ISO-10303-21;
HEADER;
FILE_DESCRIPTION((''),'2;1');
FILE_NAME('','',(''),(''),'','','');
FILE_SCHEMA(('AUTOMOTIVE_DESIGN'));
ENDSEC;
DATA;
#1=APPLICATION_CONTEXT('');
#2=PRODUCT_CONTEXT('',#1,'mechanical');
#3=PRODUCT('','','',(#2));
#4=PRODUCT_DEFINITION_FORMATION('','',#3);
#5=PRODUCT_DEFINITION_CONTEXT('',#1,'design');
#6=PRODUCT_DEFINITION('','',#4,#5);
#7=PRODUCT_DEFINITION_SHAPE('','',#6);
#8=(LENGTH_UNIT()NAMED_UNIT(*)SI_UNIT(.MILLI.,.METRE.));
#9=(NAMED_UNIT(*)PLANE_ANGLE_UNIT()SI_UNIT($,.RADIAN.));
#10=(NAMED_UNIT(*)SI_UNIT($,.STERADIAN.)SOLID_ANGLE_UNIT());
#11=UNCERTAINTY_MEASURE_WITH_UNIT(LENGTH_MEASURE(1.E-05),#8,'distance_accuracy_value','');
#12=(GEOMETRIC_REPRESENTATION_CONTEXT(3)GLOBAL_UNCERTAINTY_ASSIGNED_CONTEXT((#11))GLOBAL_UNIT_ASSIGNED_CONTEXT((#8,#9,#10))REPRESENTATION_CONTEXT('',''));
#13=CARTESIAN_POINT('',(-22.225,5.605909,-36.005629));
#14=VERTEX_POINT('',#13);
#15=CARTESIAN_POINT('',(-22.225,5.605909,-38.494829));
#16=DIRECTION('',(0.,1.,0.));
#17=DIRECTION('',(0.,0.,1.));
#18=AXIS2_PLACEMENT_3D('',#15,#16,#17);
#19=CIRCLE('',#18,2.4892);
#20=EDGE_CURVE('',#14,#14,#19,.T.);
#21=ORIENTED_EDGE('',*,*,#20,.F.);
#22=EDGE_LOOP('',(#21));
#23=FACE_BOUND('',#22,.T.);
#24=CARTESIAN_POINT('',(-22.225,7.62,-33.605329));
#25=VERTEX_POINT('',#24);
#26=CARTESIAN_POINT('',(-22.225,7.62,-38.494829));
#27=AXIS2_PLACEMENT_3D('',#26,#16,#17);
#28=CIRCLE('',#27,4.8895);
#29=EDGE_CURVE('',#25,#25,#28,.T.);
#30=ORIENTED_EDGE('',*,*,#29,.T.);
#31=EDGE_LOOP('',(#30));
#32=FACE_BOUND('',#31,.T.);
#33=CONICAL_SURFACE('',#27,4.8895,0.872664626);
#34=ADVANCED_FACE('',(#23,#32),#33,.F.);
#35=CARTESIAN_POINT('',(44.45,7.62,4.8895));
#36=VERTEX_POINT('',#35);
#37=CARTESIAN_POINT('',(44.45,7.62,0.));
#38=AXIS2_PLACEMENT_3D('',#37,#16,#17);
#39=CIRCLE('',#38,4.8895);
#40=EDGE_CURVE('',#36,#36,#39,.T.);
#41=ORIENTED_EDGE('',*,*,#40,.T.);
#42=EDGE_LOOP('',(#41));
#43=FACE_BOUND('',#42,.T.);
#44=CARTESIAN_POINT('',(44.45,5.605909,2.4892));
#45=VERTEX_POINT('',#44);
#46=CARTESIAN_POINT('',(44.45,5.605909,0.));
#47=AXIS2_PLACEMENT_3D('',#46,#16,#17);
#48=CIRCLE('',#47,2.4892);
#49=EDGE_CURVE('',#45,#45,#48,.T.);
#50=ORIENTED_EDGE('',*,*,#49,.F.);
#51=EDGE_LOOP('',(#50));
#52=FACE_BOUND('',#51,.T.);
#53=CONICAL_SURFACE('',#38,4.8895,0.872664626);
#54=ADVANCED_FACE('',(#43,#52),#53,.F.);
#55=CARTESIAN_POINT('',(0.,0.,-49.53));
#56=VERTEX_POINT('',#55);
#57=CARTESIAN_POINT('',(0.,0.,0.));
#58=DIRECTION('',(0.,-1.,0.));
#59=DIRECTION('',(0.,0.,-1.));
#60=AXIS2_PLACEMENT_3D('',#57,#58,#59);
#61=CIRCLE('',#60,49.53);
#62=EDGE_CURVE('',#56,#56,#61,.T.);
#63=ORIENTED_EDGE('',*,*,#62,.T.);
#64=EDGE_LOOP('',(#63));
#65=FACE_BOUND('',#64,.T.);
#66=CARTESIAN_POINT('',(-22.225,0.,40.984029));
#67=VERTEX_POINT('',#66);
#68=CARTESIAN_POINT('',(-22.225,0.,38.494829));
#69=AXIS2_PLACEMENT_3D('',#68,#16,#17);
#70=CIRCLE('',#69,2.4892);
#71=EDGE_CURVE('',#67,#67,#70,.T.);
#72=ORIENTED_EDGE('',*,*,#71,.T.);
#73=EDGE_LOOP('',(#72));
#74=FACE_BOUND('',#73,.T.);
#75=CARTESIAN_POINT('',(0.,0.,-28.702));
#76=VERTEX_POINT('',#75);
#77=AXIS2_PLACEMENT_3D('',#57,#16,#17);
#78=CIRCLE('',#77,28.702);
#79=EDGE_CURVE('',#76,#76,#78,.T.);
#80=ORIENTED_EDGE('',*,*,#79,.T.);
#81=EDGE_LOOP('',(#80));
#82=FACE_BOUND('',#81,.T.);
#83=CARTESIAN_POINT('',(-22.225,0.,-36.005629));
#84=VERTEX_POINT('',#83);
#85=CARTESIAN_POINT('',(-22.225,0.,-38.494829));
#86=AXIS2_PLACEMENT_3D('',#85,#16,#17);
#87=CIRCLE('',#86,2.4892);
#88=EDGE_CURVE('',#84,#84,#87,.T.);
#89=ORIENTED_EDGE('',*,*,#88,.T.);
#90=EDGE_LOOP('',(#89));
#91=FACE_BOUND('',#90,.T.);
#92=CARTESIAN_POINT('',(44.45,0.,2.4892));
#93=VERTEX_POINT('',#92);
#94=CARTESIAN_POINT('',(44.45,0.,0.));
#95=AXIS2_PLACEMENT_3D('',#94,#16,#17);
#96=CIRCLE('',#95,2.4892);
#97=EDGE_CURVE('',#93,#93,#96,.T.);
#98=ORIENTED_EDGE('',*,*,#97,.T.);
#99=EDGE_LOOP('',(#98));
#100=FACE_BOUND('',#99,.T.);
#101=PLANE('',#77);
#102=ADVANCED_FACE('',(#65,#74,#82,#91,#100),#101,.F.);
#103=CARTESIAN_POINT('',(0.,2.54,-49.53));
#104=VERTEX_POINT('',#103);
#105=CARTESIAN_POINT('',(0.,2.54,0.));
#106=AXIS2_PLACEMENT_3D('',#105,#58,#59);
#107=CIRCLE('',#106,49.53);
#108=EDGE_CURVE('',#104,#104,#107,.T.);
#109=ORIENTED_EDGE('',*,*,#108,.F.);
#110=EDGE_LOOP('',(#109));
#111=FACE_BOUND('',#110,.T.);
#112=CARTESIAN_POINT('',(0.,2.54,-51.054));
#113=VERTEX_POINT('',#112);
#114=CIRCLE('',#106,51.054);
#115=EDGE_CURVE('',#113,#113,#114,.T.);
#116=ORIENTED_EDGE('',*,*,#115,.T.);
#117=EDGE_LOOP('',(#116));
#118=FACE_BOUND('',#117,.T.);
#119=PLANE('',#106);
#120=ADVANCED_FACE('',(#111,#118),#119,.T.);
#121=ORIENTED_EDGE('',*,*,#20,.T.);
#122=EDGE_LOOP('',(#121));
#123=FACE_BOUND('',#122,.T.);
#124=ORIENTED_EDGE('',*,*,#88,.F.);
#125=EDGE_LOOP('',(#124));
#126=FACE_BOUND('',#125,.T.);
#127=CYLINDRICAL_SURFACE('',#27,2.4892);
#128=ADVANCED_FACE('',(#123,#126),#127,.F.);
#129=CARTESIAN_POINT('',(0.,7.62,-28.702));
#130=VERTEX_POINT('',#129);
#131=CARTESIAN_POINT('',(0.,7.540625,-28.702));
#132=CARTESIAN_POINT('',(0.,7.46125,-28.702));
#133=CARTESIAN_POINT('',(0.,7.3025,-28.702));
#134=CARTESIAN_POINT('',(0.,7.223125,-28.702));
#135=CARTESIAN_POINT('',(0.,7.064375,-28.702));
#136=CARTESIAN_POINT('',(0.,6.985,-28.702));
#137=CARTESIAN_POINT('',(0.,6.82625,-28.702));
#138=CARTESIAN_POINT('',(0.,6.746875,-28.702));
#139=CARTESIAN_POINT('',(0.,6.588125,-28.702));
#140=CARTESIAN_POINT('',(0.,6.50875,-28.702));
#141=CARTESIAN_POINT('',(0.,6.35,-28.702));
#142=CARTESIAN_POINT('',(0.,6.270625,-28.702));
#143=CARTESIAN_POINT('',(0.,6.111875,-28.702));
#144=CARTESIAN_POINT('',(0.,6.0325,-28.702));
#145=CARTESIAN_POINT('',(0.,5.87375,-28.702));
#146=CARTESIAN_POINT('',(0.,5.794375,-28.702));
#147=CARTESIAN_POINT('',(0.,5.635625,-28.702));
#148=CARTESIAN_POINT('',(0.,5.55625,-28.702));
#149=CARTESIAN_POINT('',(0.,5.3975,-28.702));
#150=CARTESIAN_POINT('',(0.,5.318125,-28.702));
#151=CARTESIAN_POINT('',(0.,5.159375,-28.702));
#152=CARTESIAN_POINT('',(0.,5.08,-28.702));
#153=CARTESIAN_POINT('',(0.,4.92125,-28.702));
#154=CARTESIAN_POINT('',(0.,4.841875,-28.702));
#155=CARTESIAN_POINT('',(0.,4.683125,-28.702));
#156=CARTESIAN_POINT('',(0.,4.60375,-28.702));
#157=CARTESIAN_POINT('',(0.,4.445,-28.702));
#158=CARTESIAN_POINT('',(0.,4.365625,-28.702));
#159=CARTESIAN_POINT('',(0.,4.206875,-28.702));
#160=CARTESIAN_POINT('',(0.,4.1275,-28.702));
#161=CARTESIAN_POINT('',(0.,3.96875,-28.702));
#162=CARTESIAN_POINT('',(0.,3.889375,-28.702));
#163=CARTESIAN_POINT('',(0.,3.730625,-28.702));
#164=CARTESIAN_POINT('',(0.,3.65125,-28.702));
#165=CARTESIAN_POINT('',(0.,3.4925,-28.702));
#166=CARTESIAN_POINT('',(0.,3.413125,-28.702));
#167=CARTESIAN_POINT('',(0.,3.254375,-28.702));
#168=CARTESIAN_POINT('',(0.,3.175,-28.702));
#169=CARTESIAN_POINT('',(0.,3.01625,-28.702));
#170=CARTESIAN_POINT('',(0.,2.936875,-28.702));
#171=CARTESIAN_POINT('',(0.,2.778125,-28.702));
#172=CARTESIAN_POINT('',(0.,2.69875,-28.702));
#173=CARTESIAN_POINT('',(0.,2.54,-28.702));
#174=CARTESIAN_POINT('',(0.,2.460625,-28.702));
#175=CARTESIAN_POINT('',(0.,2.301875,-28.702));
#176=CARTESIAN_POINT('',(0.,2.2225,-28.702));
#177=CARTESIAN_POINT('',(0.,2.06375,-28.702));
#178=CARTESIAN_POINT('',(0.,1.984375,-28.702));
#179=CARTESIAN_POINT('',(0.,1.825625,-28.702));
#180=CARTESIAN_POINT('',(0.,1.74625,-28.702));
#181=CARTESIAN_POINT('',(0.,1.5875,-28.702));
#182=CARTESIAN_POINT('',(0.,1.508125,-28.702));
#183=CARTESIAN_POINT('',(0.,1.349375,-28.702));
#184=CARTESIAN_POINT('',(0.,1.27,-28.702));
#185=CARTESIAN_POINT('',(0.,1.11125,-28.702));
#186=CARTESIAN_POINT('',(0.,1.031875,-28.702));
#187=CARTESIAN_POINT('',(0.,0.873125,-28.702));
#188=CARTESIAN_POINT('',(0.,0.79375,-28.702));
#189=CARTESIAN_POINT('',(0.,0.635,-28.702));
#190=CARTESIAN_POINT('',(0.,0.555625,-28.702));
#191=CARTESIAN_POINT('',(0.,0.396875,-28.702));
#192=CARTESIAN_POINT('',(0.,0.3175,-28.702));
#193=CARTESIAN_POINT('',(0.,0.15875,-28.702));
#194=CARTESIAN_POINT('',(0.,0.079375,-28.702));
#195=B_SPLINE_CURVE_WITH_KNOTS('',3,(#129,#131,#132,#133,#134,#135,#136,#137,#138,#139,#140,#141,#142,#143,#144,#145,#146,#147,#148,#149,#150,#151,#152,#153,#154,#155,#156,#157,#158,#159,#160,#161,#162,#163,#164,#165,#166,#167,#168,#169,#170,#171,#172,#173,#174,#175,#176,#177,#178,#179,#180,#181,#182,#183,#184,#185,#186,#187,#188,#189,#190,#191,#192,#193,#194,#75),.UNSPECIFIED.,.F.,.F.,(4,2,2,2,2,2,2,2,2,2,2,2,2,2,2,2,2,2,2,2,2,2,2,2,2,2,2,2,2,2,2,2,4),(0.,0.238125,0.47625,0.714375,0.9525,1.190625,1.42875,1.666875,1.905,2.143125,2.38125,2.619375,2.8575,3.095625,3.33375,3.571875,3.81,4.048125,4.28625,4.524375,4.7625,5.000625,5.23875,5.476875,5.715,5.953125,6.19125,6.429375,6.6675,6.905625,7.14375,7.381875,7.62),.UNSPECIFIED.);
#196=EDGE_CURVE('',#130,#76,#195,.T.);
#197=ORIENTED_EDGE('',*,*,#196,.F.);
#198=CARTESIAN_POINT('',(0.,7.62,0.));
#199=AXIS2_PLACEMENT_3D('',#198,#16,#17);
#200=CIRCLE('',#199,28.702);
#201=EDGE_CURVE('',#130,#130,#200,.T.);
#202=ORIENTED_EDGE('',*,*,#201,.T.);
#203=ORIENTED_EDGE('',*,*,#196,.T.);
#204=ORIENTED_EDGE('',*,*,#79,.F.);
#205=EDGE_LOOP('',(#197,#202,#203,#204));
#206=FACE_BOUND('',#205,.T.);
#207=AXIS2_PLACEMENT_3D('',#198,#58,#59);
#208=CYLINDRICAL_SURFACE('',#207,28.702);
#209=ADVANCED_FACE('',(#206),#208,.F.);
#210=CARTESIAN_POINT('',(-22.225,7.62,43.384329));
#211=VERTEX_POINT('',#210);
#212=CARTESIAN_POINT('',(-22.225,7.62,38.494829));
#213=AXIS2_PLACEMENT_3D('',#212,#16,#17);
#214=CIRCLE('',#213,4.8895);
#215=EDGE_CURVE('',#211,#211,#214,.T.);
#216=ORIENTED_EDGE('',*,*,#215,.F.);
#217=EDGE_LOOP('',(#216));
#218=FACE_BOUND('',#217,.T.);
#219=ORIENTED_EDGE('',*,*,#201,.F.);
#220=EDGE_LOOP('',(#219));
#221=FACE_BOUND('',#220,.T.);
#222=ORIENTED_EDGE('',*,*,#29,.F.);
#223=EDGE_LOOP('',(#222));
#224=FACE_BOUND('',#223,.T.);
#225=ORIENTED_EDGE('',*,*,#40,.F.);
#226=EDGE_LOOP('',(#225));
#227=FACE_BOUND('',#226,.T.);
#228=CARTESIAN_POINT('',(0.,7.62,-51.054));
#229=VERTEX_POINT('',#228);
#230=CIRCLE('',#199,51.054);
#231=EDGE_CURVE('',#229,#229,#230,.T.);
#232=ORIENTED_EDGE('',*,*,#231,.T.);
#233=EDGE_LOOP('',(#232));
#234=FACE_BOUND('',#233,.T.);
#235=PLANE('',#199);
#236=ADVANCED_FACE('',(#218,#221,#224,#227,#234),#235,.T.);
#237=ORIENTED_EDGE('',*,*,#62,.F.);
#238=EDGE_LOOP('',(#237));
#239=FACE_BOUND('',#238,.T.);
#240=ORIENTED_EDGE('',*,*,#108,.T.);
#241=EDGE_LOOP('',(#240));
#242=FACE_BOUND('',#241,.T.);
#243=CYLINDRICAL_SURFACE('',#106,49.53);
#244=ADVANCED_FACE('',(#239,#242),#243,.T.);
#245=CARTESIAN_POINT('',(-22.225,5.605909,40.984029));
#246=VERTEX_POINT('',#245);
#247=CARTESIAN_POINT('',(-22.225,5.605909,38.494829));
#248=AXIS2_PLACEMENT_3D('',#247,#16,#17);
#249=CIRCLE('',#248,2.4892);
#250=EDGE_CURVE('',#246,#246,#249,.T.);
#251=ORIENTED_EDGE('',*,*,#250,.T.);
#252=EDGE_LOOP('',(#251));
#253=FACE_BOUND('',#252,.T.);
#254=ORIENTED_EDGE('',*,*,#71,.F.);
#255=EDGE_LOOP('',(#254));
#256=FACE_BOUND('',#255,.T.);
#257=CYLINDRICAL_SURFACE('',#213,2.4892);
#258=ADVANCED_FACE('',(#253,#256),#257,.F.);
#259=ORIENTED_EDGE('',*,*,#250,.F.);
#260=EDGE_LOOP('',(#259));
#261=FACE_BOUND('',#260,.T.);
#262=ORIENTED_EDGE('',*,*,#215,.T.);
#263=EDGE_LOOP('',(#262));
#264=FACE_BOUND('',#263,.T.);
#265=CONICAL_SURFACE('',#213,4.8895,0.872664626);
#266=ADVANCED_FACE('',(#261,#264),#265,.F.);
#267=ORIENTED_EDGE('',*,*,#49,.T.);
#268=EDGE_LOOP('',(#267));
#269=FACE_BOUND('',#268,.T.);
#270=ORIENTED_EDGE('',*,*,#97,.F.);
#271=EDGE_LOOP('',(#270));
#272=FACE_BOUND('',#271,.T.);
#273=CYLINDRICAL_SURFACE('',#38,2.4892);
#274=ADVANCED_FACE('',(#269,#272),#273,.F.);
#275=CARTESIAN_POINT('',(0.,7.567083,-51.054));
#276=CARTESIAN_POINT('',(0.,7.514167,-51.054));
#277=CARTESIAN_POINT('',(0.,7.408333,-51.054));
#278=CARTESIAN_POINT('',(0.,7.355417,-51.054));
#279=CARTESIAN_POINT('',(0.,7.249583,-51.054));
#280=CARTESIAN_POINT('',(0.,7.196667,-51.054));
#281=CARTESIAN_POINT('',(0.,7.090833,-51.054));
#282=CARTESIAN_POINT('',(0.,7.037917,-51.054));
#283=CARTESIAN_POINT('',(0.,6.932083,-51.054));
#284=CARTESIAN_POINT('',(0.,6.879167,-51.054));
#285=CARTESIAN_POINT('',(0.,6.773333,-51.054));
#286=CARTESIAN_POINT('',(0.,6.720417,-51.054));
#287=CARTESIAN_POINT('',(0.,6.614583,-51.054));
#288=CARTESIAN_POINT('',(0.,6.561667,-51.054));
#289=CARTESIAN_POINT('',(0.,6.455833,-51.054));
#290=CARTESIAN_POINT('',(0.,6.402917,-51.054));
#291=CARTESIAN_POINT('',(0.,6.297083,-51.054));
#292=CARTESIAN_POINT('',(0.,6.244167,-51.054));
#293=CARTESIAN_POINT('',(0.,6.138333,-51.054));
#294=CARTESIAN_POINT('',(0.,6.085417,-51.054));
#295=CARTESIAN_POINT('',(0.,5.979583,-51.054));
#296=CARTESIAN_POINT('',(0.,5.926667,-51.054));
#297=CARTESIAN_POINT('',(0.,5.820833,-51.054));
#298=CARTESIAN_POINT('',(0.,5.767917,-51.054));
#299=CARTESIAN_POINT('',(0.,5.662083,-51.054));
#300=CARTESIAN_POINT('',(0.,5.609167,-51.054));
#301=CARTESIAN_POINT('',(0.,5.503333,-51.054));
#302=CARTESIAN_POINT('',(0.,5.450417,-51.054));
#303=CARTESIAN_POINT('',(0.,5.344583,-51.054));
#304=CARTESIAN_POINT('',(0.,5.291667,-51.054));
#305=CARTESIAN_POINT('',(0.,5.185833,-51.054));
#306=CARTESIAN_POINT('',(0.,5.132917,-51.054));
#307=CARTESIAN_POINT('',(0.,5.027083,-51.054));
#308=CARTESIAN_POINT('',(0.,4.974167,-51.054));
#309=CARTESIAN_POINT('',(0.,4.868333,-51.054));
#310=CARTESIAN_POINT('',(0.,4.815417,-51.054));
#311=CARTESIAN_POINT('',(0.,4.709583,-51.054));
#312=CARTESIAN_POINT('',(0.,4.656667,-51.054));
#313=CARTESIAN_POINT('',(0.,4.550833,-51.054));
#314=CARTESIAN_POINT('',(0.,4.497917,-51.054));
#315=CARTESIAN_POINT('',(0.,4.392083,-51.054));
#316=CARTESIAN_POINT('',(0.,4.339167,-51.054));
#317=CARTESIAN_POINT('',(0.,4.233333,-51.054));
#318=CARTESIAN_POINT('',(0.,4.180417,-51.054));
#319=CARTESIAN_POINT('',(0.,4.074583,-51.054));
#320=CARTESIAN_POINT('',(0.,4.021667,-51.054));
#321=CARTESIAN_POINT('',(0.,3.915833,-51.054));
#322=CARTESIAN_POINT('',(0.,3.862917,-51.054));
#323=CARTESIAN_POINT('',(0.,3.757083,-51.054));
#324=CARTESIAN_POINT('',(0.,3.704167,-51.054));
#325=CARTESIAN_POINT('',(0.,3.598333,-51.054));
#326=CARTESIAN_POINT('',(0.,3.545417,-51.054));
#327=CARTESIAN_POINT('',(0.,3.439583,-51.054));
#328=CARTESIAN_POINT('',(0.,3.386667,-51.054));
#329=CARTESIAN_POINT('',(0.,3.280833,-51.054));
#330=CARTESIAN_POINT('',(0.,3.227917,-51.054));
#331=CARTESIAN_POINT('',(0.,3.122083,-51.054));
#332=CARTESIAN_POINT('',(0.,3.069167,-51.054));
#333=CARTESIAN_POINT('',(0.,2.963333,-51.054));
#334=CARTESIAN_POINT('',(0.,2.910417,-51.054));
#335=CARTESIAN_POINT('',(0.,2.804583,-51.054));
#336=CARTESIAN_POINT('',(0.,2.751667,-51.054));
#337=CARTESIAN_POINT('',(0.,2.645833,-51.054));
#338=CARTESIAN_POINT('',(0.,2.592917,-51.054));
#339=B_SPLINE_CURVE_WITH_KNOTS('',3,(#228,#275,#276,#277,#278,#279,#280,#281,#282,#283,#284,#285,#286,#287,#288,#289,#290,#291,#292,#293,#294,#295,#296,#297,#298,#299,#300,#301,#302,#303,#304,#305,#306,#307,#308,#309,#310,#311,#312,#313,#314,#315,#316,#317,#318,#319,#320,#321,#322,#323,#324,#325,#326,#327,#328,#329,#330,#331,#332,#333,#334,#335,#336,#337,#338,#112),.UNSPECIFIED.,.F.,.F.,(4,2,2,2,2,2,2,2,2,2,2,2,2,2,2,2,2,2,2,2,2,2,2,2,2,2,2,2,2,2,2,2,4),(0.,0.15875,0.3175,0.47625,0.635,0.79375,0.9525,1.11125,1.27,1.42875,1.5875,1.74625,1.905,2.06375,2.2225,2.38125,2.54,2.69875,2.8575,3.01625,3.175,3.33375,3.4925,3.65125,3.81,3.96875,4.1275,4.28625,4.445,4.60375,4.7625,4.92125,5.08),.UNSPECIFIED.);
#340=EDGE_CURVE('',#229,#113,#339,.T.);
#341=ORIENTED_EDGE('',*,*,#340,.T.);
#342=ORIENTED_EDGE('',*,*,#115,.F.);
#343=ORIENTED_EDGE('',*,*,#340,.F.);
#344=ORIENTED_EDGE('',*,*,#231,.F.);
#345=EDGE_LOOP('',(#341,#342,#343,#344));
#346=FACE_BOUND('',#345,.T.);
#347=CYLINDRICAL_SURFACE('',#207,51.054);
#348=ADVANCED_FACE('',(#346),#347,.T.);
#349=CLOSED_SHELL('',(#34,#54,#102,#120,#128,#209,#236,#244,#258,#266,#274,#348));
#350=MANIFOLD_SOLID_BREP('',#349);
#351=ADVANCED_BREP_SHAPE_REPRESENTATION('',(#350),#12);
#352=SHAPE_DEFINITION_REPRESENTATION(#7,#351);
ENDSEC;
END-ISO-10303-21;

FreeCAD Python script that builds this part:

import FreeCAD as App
import Part
import Sketcher
Q = App.Units.Quantity

doc = App.newDocument("Part")
body = doc.addObject("PartDesign::Body", "Body")

# Sketch on XZ plane
sketch1 = doc.addObject("Sketcher::SketchObject", "Sketch")
body.addObject(sketch1)
sketch1.AttachmentSupport = (doc.XZ_Plane, [""])
sketch1.MapMode = "FlatFace"
sketch1.addGeometry([
    Part.Circle(App.Vector(0, 0, 0), App.Vector(0, 0, 1), 51),
    Part.Circle(App.Vector(0, 0, 0), App.Vector(0, 0, 1), 29),
], False)
sketch1.addConstraint([
    Sketcher.Constraint("Coincident", 0, 3, -1, 1),
    Sketcher.Constraint("Coincident", 1, 3, -1, 1),
    Sketcher.Constraint("Diameter", 0, Q("4.02 in")),
    Sketcher.Constraint("Diameter", 1, Q("2.26 in")),
])
pad1 = doc.addObject("PartDesign::Pad", "Pad")
body.addObject(pad1)
pad1.Profile = sketch1
pad1.Length = Q("0.3 in")
pad1.Reversed = True

# Sketch on XZ plane
sketch2 = doc.addObject("Sketcher::SketchObject", "Sketch001")
body.addObject(sketch2)
sketch2.AttachmentSupport = (doc.XZ_Plane, [""])
sketch2.MapMode = "FlatFace"
sketch2.AttachmentOffset = App.Placement(App.Vector(0, 0, -0.3 * 25.4), App.Rotation())
sketch2.addGeometry(Part.Circle(App.Vector(44.5, 0, 0), App.Vector(0, 0, 1), 2.5), False)
sketch2.addConstraint([
    Sketcher.Constraint("PointOnObject", 0, 3, -1),
    Sketcher.Constraint("Diameter", 0, Q("0.196 in")),
    Sketcher.Constraint("DistanceX", -1, 1, 0, 3, Q("1.75 in")),
])
doc.recompute()
hole = doc.addObject("PartDesign::Hole", "Hole")
body.addObject(hole)
hole.Profile = sketch2
hole.ThreadType = "None"
hole.Diameter = Q("0.196 in")
hole.DepthType = "ThroughAll"
hole.HoleCutType = "Countersink"
hole.HoleCutDiameter = Q("0.385 in")
hole.HoleCutCountersinkAngle = 100
hole.Reversed = True
doc.recompute()

polarpattern = doc.addObject("PartDesign::PolarPattern", "PolarPattern")
body.addObject(polarpattern)
polarpattern.Originals = [hole]
polarpattern.Axis = (doc.Y_Axis, [""])
polarpattern.Angle = 360
polarpattern.Occurrences = 3
body.Tip = polarpattern

# Sketch on XZ plane
sketch3 = doc.addObject("Sketcher::SketchObject", "Sketch002")
body.addObject(sketch3)
sketch3.AttachmentSupport = (doc.XZ_Plane, [""])
sketch3.MapMode = "FlatFace"
sketch3.addGeometry([
    Part.Circle(App.Vector(0, 0, 0), App.Vector(0, 0, 1), 51),
    Part.Circle(App.Vector(0, 0, 0), App.Vector(0, 0, 1), 50),
], False)
sketch3.addConstraint([
    Sketcher.Constraint("Coincident", 0, 3, -1, 1),
    Sketcher.Constraint("Coincident", 1, 3, -1, 1),
    Sketcher.Constraint("Diameter", 1, Q("3.9 in")),
    Sketcher.Constraint("Diameter", 0, Q("4.02 in")),
])
pocket1 = doc.addObject("PartDesign::Pocket", "Pocket")
body.addObject(pocket1)
pocket1.Profile = sketch3
pocket1.Length = Q("0.1 in")

doc.recompute()
